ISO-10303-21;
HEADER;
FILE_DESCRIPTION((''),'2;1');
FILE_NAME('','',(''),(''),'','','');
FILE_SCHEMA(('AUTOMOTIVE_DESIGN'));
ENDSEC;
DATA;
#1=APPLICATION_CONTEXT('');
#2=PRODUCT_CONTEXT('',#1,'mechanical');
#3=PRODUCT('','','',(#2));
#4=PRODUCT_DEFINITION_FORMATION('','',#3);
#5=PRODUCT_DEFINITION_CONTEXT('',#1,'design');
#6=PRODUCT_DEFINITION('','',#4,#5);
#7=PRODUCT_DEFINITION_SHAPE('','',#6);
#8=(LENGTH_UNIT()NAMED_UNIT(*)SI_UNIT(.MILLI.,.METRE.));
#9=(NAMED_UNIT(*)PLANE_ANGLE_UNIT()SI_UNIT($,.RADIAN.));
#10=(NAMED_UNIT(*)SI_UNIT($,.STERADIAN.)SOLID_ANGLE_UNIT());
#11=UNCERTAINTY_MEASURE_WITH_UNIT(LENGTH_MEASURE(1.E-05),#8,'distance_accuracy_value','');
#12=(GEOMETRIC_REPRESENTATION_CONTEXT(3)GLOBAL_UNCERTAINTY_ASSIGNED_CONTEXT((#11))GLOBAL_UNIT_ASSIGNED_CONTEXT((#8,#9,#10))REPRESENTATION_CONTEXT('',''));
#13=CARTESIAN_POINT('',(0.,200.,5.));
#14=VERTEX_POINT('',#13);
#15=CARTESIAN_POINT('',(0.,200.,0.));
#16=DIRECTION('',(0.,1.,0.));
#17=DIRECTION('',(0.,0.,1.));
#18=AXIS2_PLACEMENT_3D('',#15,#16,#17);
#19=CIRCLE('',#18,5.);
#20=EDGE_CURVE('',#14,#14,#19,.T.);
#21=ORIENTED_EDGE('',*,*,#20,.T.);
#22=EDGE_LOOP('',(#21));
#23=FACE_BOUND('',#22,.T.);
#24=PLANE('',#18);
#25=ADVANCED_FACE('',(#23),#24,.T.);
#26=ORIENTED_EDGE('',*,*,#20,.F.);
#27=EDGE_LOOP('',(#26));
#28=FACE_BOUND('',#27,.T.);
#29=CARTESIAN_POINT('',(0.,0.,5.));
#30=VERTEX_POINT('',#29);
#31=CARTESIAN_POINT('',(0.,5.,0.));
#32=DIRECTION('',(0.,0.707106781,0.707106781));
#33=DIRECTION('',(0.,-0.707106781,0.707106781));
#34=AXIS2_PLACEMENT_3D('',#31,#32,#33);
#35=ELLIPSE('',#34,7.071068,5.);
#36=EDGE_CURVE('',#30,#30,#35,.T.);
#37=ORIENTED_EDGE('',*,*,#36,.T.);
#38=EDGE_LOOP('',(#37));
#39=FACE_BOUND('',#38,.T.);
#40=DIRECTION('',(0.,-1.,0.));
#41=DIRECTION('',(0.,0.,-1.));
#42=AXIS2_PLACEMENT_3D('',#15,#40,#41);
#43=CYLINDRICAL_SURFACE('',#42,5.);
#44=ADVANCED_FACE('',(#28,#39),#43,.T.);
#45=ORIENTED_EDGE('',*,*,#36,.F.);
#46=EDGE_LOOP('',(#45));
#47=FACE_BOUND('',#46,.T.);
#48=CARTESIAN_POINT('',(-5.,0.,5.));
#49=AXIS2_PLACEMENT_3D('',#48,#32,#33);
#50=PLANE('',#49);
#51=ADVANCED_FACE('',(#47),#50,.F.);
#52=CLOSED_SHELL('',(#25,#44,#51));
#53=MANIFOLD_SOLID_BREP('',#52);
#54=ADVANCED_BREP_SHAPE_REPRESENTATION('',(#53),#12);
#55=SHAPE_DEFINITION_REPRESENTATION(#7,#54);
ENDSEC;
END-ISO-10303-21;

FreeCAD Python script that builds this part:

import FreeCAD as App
import Part
import Sketcher

V = App.Vector
Q = App.Units.Quantity

doc = App.newDocument("Part")
body = doc.addObject("PartDesign::Body", "Body")

sketch1 = body.newObject("Sketcher::SketchObject", "Sketch")
sketch1.AttachmentSupport = (doc.getObject("XZ_Plane"), [""])
sketch1.MapMode = "FlatFace"
sketch1.addGeometry(Part.Circle(V(0, 0, 0), V(0, 0, 1), 5), False)
sketch1.addConstraint(Sketcher.Constraint("Coincident", 0, 3, -1, 1))
sketch1.addConstraint(Sketcher.Constraint("Diameter", 0, Q("10 mm")))
pad1 = body.newObject("PartDesign::Pad", "Pad")
pad1.Profile = sketch1
pad1.Length = 200
pad1.Reversed = True

sketch2 = body.newObject("Sketcher::SketchObject", "Sketch001")
sketch2.AttachmentSupport = (doc.getObject("YZ_Plane"), [""])
sketch2.MapMode = "FlatFace"
sketch2.addGeometry(Part.LineSegment(V(10, -5, 0), V(0, 5, 0)), False)
sketch2.addGeometry(Part.LineSegment(V(0, 5, 0), V(0, -5, 0)), False)
sketch2.addGeometry(Part.LineSegment(V(0, -5, 0), V(10, -5, 0)), False)
sketch2.addConstraint(Sketcher.Constraint("Coincident", 0, 2, 1, 1))
sketch2.addConstraint(Sketcher.Constraint("Coincident", 1, 2, 2, 1))
sketch2.addConstraint(Sketcher.Constraint("Coincident", 2, 2, 0, 1))
sketch2.addConstraint(Sketcher.Constraint("Vertical", 1))
sketch2.addConstraint(Sketcher.Constraint("Horizontal", 2))
sketch2.addConstraint(Sketcher.Constraint("Symmetric", 0, 2, 1, 2, -1, 1))
sketch2.addConstraint(Sketcher.Constraint("Equal", 2, 1))
sketch2.addConstraint(Sketcher.Constraint("DistanceX", 2, 1, 2, 2, Q("10 mm")))
pocket1 = body.newObject("PartDesign::Pocket", "Pocket")
pocket1.Profile = sketch2
pocket1.Type = "ThroughAll"
pocket1.Midplane = True

doc.recompute()
